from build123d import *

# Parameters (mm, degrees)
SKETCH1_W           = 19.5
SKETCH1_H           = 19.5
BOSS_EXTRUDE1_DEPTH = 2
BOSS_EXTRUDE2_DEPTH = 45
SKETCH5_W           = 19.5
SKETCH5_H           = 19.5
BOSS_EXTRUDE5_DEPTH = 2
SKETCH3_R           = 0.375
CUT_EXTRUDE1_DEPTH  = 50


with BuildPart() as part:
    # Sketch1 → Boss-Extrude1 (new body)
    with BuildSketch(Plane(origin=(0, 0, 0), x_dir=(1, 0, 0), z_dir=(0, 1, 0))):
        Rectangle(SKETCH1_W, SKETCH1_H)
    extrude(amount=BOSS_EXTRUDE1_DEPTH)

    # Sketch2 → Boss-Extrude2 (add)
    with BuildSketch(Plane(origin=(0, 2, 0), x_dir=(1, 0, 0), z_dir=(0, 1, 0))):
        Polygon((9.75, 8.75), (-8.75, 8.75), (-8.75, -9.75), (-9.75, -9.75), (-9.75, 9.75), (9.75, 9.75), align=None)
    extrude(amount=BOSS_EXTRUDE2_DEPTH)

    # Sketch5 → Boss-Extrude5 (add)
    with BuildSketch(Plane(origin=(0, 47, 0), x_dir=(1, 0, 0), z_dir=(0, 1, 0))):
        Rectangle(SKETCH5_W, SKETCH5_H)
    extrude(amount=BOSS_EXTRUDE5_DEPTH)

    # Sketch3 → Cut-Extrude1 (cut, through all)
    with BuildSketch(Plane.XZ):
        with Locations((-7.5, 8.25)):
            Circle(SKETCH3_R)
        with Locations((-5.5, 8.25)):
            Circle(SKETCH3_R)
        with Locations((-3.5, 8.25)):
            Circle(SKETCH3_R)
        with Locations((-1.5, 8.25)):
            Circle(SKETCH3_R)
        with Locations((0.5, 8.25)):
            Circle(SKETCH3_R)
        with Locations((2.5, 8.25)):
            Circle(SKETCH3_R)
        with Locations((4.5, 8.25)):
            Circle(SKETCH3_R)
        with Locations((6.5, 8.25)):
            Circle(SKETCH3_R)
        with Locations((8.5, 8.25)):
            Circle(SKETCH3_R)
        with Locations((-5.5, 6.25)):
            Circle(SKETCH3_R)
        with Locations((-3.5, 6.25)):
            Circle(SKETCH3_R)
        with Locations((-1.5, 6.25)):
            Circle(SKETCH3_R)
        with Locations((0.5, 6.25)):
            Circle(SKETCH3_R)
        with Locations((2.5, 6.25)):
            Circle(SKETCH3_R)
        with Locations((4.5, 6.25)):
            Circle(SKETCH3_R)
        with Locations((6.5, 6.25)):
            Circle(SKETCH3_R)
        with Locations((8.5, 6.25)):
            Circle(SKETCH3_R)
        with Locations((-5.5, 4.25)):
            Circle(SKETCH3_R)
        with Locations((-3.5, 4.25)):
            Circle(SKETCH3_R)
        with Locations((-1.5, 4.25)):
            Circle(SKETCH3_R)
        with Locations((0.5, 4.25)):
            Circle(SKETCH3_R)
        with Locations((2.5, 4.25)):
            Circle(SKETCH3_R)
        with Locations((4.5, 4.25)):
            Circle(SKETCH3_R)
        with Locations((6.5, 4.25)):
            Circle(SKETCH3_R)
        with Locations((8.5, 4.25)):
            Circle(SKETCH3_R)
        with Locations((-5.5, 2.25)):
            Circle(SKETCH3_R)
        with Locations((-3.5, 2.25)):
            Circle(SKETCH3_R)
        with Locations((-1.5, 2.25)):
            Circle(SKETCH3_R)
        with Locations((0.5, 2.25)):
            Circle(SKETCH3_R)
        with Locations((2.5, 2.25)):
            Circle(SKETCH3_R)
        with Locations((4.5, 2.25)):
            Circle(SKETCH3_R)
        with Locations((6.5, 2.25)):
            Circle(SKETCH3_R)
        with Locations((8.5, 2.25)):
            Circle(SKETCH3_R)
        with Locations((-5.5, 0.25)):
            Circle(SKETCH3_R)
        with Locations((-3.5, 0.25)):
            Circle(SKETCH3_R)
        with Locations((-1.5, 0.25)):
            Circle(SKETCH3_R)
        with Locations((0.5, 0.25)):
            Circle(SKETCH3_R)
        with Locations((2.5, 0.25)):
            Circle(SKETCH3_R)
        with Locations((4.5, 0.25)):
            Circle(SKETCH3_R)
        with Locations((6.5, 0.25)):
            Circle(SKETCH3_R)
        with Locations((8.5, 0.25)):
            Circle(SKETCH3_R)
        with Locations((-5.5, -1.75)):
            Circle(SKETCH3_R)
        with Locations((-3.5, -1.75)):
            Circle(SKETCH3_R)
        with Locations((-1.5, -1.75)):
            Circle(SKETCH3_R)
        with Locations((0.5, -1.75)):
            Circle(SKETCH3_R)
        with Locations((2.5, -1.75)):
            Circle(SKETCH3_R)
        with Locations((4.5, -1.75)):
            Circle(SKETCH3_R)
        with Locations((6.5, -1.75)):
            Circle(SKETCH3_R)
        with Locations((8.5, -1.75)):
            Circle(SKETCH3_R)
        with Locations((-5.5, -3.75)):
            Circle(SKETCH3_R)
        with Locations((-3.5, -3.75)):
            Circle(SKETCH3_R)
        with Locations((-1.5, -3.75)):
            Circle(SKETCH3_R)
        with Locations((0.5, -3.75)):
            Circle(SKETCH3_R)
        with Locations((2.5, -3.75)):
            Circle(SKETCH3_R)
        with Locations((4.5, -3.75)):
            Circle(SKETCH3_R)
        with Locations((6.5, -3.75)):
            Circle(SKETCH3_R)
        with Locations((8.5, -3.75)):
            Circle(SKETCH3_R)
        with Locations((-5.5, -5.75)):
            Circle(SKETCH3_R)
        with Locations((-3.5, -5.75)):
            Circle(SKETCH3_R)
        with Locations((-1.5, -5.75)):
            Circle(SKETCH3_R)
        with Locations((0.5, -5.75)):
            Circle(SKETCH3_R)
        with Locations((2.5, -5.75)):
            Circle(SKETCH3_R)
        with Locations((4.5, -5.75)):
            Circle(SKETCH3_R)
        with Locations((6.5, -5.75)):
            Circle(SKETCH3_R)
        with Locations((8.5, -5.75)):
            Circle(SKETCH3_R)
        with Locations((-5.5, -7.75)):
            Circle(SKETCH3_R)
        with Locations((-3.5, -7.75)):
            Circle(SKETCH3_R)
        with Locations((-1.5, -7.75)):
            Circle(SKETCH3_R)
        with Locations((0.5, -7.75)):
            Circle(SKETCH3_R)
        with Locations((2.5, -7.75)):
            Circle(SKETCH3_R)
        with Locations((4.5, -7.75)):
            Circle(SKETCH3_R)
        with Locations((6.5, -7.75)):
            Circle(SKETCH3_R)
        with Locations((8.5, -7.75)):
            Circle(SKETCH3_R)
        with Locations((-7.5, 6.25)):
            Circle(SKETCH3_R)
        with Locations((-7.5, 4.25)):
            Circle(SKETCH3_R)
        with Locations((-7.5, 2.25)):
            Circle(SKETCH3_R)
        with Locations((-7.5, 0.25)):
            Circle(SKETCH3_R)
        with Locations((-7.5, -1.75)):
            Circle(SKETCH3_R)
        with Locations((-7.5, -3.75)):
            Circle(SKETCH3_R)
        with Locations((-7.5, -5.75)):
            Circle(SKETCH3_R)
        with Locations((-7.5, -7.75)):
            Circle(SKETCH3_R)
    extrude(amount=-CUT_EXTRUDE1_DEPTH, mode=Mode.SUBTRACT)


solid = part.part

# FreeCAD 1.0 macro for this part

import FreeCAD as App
import Part
import Sketcher

V = App.Vector

doc = App.newDocument("Part")
params = doc.addObject("Spreadsheet::Sheet", "Params")
for row, (alias, value) in enumerate([
    ("sketch1_width", "19.5 mm"),
    ("pad1_length", "2 mm"),
    ("sketch2_width", "1 mm"),
    ("sketch2_width2", "18.5 mm"),
    ("pad2_length", "45 mm"),
    ("sketch3_width", "19.5 mm"),
    ("pad3_length", "2 mm"),
    ("sketch4_diameter", "0.75 mm"),
], start=1):
    params.set(f"A{row}", alias)
    params.set(f"B{row}", "=" + value)
    params.setAlias(f"B{row}", alias)

body = doc.addObject("PartDesign::Body", "Body")

sketch1 = body.newObject("Sketcher::SketchObject", "Sketch")
sketch1.AttachmentSupport = (doc.getObject("XZ_Plane"), [""])
sketch1.MapMode = "FlatFace"
sketch1.addGeometry([
    Part.LineSegment(V(-10, -10, 0), V(-10, 10, 0)),
    Part.LineSegment(V(-10, 10, 0), V(10, 10, 0)),
    Part.LineSegment(V(10, 10, 0), V(10, -10, 0)),
    Part.LineSegment(V(10, -10, 0), V(-10, -10, 0)),
], False)
sketch1.addConstraint([
    Sketcher.Constraint("Coincident", 0, 2, 1, 1),
    Sketcher.Constraint("Coincident", 1, 2, 2, 1),
    Sketcher.Constraint("Coincident", 2, 2, 3, 1),
    Sketcher.Constraint("Coincident", 3, 2, 0, 1),
    Sketcher.Constraint("Vertical", 0),
    Sketcher.Constraint("Horizontal", 1),
    Sketcher.Constraint("Vertical", 2),
    Sketcher.Constraint("Horizontal", 3),
    Sketcher.Constraint("Symmetric", 0, 2, 2, 2, -1, 1),
    Sketcher.Constraint("Equal", 3, 0),
    Sketcher.Constraint("DistanceX", 1, 1, 1, 2, 19.5),
])
sketch1.setExpression("Constraints[10]", "Params.sketch1_width")
pad1 = body.newObject("PartDesign::Pad", "Pad")
pad1.Profile = sketch1
pad1.setExpression("Length", "Params.pad1_length")
pad1.Reversed = True

sketch2 = body.newObject("Sketcher::SketchObject", "Sketch001")
sketch2.AttachmentSupport = (doc.getObject("XZ_Plane"), [""])
sketch2.MapMode = "FlatFace"
sketch2.AttachmentOffset = App.Placement(V(0, 0, -2), App.Rotation())
sketch2.addGeometry([
    Part.LineSegment(V(-8.8, -8.8, 0), V(9.8, -8.8, 0)),
    Part.LineSegment(V(9.8, -8.8, 0), V(9.8, -9.8, 0)),
    Part.LineSegment(V(9.8, -9.8, 0), V(-9.8, -9.8, 0)),
    Part.LineSegment(V(-9.8, -9.8, 0), V(-9.8, 9.8, 0)),
    Part.LineSegment(V(-9.8, 9.8, 0), V(-8.8, 9.8, 0)),
    Part.LineSegment(V(-8.8, 9.8, 0), V(-8.8, -8.8, 0)),
], False)
sketch2.addConstraint([
    Sketcher.Constraint("Coincident", 0, 2, 1, 1),
    Sketcher.Constraint("Coincident", 1, 2, 2, 1),
    Sketcher.Constraint("Coincident", 2, 2, 3, 1),
    Sketcher.Constraint("Coincident", 3, 2, 4, 1),
    Sketcher.Constraint("Coincident", 4, 2, 5, 1),
    Sketcher.Constraint("Coincident", 5, 2, 0, 1),
    Sketcher.Constraint("Horizontal", 0),
    Sketcher.Constraint("Vertical", 1),
    Sketcher.Constraint("Horizontal", 2),
    Sketcher.Constraint("Vertical", 3),
    Sketcher.Constraint("Horizontal", 4),
    Sketcher.Constraint("Vertical", 5),
    Sketcher.Constraint("Symmetric", 1, 2, 3, 2, -1, 1),
    Sketcher.Constraint("Equal", 4, 1),
    Sketcher.Constraint("Equal", 2, 3),
    Sketcher.Constraint("DistanceX", 4, 1, 4, 2, 1.0),
    Sketcher.Constraint("DistanceX", 0, 1, 0, 2, 18.5),
])
sketch2.setExpression("Constraints[15]", "Params.sketch2_width")
sketch2.setExpression("Constraints[16]", "Params.sketch2_width2")
pad2 = body.newObject("PartDesign::Pad", "Pad001")
pad2.Profile = sketch2
pad2.setExpression("Length", "Params.pad2_length")
pad2.Reversed = True

sketch3 = body.newObject("Sketcher::SketchObject", "Sketch002")
sketch3.AttachmentSupport = (doc.getObject("XZ_Plane"), [""])
sketch3.MapMode = "FlatFace"
sketch3.AttachmentOffset = App.Placement(V(0, 0, -47), App.Rotation())
sketch3.addGeometry([
    Part.LineSegment(V(-10, -10, 0), V(-10, 10, 0)),
    Part.LineSegment(V(-10, 10, 0), V(10, 10, 0)),
    Part.LineSegment(V(10, 10, 0), V(10, -10, 0)),
    Part.LineSegment(V(10, -10, 0), V(-10, -10, 0)),
], False)
sketch3.addConstraint([
    Sketcher.Constraint("Coincident", 0, 2, 1, 1),
    Sketcher.Constraint("Coincident", 1, 2, 2, 1),
    Sketcher.Constraint("Coincident", 2, 2, 3, 1),
    Sketcher.Constraint("Coincident", 3, 2, 0, 1),
    Sketcher.Constraint("Vertical", 0),
    Sketcher.Constraint("Horizontal", 1),
    Sketcher.Constraint("Vertical", 2),
    Sketcher.Constraint("Horizontal", 3),
    Sketcher.Constraint("Symmetric", 0, 2, 2, 2, -1, 1),
    Sketcher.Constraint("Equal", 3, 0),
    Sketcher.Constraint("DistanceX", 1, 1, 1, 2, 19.5),
])
sketch3.setExpression("Constraints[10]", "Params.sketch3_width")
pad3 = body.newObject("PartDesign::Pad", "Pad002")
pad3.Profile = sketch3
pad3.setExpression("Length", "Params.pad3_length")
pad3.Reversed = True

sketch4 = body.newObject("Sketcher::SketchObject", "Sketch003")
sketch4.AttachmentSupport = (doc.getObject("XZ_Plane"), [""])
sketch4.MapMode = "FlatFace"
sketch4.addGeometry([
    Part.Circle(V(-7.5, 8.25, 0), V(0, 0, 1), 0.38),
    Part.Circle(V(-5.5, 8.25, 0), V(0, 0, 1), 0.38),
    Part.Circle(V(-3.5, 8.25, 0), V(0, 0, 1), 0.38),
    Part.Circle(V(-1.5, 8.25, 0), V(0, 0, 1), 0.38),
    Part.Circle(V(0.5, 8.25, 0), V(0, 0, 1), 0.38),
    Part.Circle(V(2.5, 8.25, 0), V(0, 0, 1), 0.38),
    Part.Circle(V(4.5, 8.25, 0), V(0, 0, 1), 0.38),
    Part.Circle(V(6.5, 8.25, 0), V(0, 0, 1), 0.38),
    Part.Circle(V(8.5, 8.25, 0), V(0, 0, 1), 0.38),
    Part.Circle(V(-5.5, 6.25, 0), V(0, 0, 1), 0.38),
    Part.Circle(V(-3.5, 6.25, 0), V(0, 0, 1), 0.38),
    Part.Circle(V(-1.5, 6.25, 0), V(0, 0, 1), 0.38),
    Part.Circle(V(0.5, 6.25, 0), V(0, 0, 1), 0.38),
    Part.Circle(V(2.5, 6.25, 0), V(0, 0, 1), 0.38),
    Part.Circle(V(4.5, 6.25, 0), V(0, 0, 1), 0.38),
    Part.Circle(V(6.5, 6.25, 0), V(0, 0, 1), 0.38),
    Part.Circle(V(8.5, 6.25, 0), V(0, 0, 1), 0.38),
    Part.Circle(V(-5.5, 4.25, 0), V(0, 0, 1), 0.38),
    Part.Circle(V(-3.5, 4.25, 0), V(0, 0, 1), 0.38),
    Part.Circle(V(-1.5, 4.25, 0), V(0, 0, 1), 0.38),
    Part.Circle(V(0.5, 4.25, 0), V(0, 0, 1), 0.38),
    Part.Circle(V(2.5, 4.25, 0), V(0, 0, 1), 0.38),
    Part.Circle(V(4.5, 4.25, 0), V(0, 0, 1), 0.38),
    Part.Circle(V(6.5, 4.25, 0), V(0, 0, 1), 0.38),
    Part.Circle(V(8.5, 4.25, 0), V(0, 0, 1), 0.38),
    Part.Circle(V(-5.5, 2.25, 0), V(0, 0, 1), 0.38),
    Part.Circle(V(-3.5, 2.25, 0), V(0, 0, 1), 0.38),
    Part.Circle(V(-1.5, 2.25, 0), V(0, 0, 1), 0.38),
    Part.Circle(V(0.5, 2.25, 0), V(0, 0, 1), 0.38),
    Part.Circle(V(2.5, 2.25, 0), V(0, 0, 1), 0.38),
    Part.Circle(V(4.5, 2.25, 0), V(0, 0, 1), 0.38),
    Part.Circle(V(6.5, 2.25, 0), V(0, 0, 1), 0.38),
    Part.Circle(V(8.5, 2.25, 0), V(0, 0, 1), 0.38),
    Part.Circle(V(-5.5, 0.25, 0), V(0, 0, 1), 0.38),
    Part.Circle(V(-3.5, 0.25, 0), V(0, 0, 1), 0.38),
    Part.Circle(V(-1.5, 0.25, 0), V(0, 0, 1), 0.38),
    Part.Circle(V(0.5, 0.25, 0), V(0, 0, 1), 0.38),
    Part.Circle(V(2.5, 0.25, 0), V(0, 0, 1), 0.38),
    Part.Circle(V(4.5, 0.25, 0), V(0, 0, 1), 0.38),
    Part.Circle(V(6.5, 0.25, 0), V(0, 0, 1), 0.38),
    Part.Circle(V(8.5, 0.25, 0), V(0, 0, 1), 0.38),
    Part.Circle(V(-5.5, -1.75, 0), V(0, 0, 1), 0.38),
    Part.Circle(V(-3.5, -1.75, 0), V(0, 0, 1), 0.38),
    Part.Circle(V(-1.5, -1.75, 0), V(0, 0, 1), 0.38),
    Part.Circle(V(0.5, -1.75, 0), V(0, 0, 1), 0.38),
    Part.Circle(V(2.5, -1.75, 0), V(0, 0, 1), 0.38),
    Part.Circle(V(4.5, -1.75, 0), V(0, 0, 1), 0.38),
    Part.Circle(V(6.5, -1.75, 0), V(0, 0, 1), 0.38),
    Part.Circle(V(8.5, -1.75, 0), V(0, 0, 1), 0.38),
    Part.Circle(V(-5.5, -3.75, 0), V(0, 0, 1), 0.38),
    Part.Circle(V(-3.5, -3.75, 0), V(0, 0, 1), 0.38),
    Part.Circle(V(-1.5, -3.75, 0), V(0, 0, 1), 0.38),
    Part.Circle(V(0.5, -3.75, 0), V(0, 0, 1), 0.38),
    Part.Circle(V(2.5, -3.75, 0), V(0, 0, 1), 0.38),
    Part.Circle(V(4.5, -3.75, 0), V(0, 0, 1), 0.38),
    Part.Circle(V(6.5, -3.75, 0), V(0, 0, 1), 0.38),
    Part.Circle(V(8.5, -3.75, 0), V(0, 0, 1), 0.38),
    Part.Circle(V(-5.5, -5.75, 0), V(0, 0, 1), 0.38),
    Part.Circle(V(-3.5, -5.75, 0), V(0, 0, 1), 0.38),
    Part.Circle(V(-1.5, -5.75, 0), V(0, 0, 1), 0.38),
    Part.Circle(V(0.5, -5.75, 0), V(0, 0, 1), 0.38),
    Part.Circle(V(2.5, -5.75, 0), V(0, 0, 1), 0.38),
    Part.Circle(V(4.5, -5.75, 0), V(0, 0, 1), 0.38),
    Part.Circle(V(6.5, -5.75, 0), V(0, 0, 1), 0.38),
    Part.Circle(V(8.5, -5.75, 0), V(0, 0, 1), 0.38),
    Part.Circle(V(-5.5, -7.75, 0), V(0, 0, 1), 0.38),
    Part.Circle(V(-3.5, -7.75, 0), V(0, 0, 1), 0.38),
    Part.Circle(V(-1.5, -7.75, 0), V(0, 0, 1), 0.38),
    Part.Circle(V(0.5, -7.75, 0), V(0, 0, 1), 0.38),
    Part.Circle(V(2.5, -7.75, 0), V(0, 0, 1), 0.38),
    Part.Circle(V(4.5, -7.75, 0), V(0, 0, 1), 0.38),
    Part.Circle(V(6.5, -7.75, 0), V(0, 0, 1), 0.38),
    Part.Circle(V(8.5, -7.75, 0), V(0, 0, 1), 0.38),
    Part.Circle(V(-7.5, 6.25, 0), V(0, 0, 1), 0.38),
    Part.Circle(V(-7.5, 4.25, 0), V(0, 0, 1), 0.38),
    Part.Circle(V(-7.5, 2.25, 0), V(0, 0, 1), 0.38),
    Part.Circle(V(-7.5, 0.25, 0), V(0, 0, 1), 0.38),
    Part.Circle(V(-7.5, -1.75, 0), V(0, 0, 1), 0.38),
    Part.Circle(V(-7.5, -3.75, 0), V(0, 0, 1), 0.38),
    Part.Circle(V(-7.5, -5.75, 0), V(0, 0, 1), 0.38),
    Part.Circle(V(-7.5, -7.75, 0), V(0, 0, 1), 0.38),
], False)
sketch4.addConstraint([
    Sketcher.Constraint("Equal", 0, 1),
    Sketcher.Constraint("Equal", 1, 2),
    Sketcher.Constraint("Equal", 2, 3),
    Sketcher.Constraint("Equal", 3, 4),
    Sketcher.Constraint("Equal", 4, 5),
    Sketcher.Constraint("Equal", 5, 6),
    Sketcher.Constraint("Equal", 6, 7),
    Sketcher.Constraint("Equal", 7, 8),
    Sketcher.Constraint("Equal", 8, 9),
    Sketcher.Constraint("Equal", 9, 10),
    Sketcher.Constraint("Equal", 10, 11),
    Sketcher.Constraint("Equal", 11, 12),
    Sketcher.Constraint("Equal", 12, 13),
    Sketcher.Constraint("Equal", 13, 14),
    Sketcher.Constraint("Equal", 14, 15),
    Sketcher.Constraint("Equal", 15, 16),
    Sketcher.Constraint("Equal", 16, 17),
    Sketcher.Constraint("Equal", 17, 18),
    Sketcher.Constraint("Equal", 18, 19),
    Sketcher.Constraint("Equal", 19, 20),
    Sketcher.Constraint("Equal", 20, 21),
    Sketcher.Constraint("Equal", 21, 22),
    Sketcher.Constraint("Equal", 22, 23),
    Sketcher.Constraint("Equal", 23, 24),
    Sketcher.Constraint("Equal", 24, 25),
    Sketcher.Constraint("Equal", 25, 26),
    Sketcher.Constraint("Equal", 26, 27),
    Sketcher.Constraint("Equal", 27, 28),
    Sketcher.Constraint("Equal", 28, 29),
    Sketcher.Constraint("Equal", 29, 30),
    Sketcher.Constraint("Equal", 30, 31),
    Sketcher.Constraint("Equal", 31, 32),
    Sketcher.Constraint("Equal", 32, 33),
    Sketcher.Constraint("Equal", 33, 34),
    Sketcher.Constraint("Equal", 34, 35),
    Sketcher.Constraint("Equal", 35, 36),
    Sketcher.Constraint("Equal", 36, 37),
    Sketcher.Constraint("Equal", 37, 38),
    Sketcher.Constraint("Equal", 38, 39),
    Sketcher.Constraint("Equal", 39, 40),
    Sketcher.Constraint("Equal", 40, 41),
    Sketcher.Constraint("Equal", 41, 42),
    Sketcher.Constraint("Equal", 42, 43),
    Sketcher.Constraint("Equal", 43, 44),
    Sketcher.Constraint("Equal", 44, 45),
    Sketcher.Constraint("Equal", 45, 46),
    Sketcher.Constraint("Equal", 46, 47),
    Sketcher.Constraint("Equal", 47, 48),
    Sketcher.Constraint("Equal", 48, 49),
    Sketcher.Constraint("Equal", 49, 50),
    Sketcher.Constraint("Equal", 50, 51),
    Sketcher.Constraint("Equal", 51, 52),
    Sketcher.Constraint("Equal", 52, 53),
    Sketcher.Constraint("Equal", 53, 54),
    Sketcher.Constraint("Equal", 54, 55),
    Sketcher.Constraint("Equal", 55, 56),
    Sketcher.Constraint("Equal", 56, 57),
    Sketcher.Constraint("Equal", 57, 58),
    Sketcher.Constraint("Equal", 58, 59),
    Sketcher.Constraint("Equal", 59, 60),
    Sketcher.Constraint("Equal", 60, 61),
    Sketcher.Constraint("Equal", 61, 62),
    Sketcher.Constraint("Equal", 62, 63),
    Sketcher.Constraint("Equal", 63, 64),
    Sketcher.Constraint("Equal", 64, 65),
    Sketcher.Constraint("Equal", 65, 66),
    Sketcher.Constraint("Equal", 66, 67),
    Sketcher.Constraint("Equal", 67, 68),
    Sketcher.Constraint("Equal", 68, 69),
    Sketcher.Constraint("Equal", 69, 70),
    Sketcher.Constraint("Equal", 70, 71),
    Sketcher.Constraint("Equal", 71, 72),
    Sketcher.Constraint("Equal", 72, 73),
    Sketcher.Constraint("Equal", 73, 74),
    Sketcher.Constraint("Equal", 74, 75),
    Sketcher.Constraint("Equal", 75, 76),
    Sketcher.Constraint("Equal", 76, 77),
    Sketcher.Constraint("Equal", 77, 78),
    Sketcher.Constraint("Equal", 78, 79),
    Sketcher.Constraint("Equal", 79, 80),
    Sketcher.Constraint("Horizontal", 0, 3, 1, 3),
    Sketcher.Constraint("Horizontal", 1, 3, 2, 3),
    Sketcher.Constraint("Horizontal", 2, 3, 3, 3),
    Sketcher.Constraint("Horizontal", 3, 3, 4, 3),
    Sketcher.Constraint("Horizontal", 4, 3, 5, 3),
    Sketcher.Constraint("Horizontal", 5, 3, 6, 3),
    Sketcher.Constraint("Horizontal", 6, 3, 7, 3),
    Sketcher.Constraint("Horizontal", 7, 3, 8, 3),
    Sketcher.Constraint("Horizontal", 9, 3, 10, 3),
    Sketcher.Constraint("Horizontal", 10, 3, 11, 3),
    Sketcher.Constraint("Horizontal", 11, 3, 12, 3),
    Sketcher.Constraint("Horizontal", 12, 3, 13, 3),
    Sketcher.Constraint("Horizontal", 13, 3, 14, 3),
    Sketcher.Constraint("Horizontal", 14, 3, 15, 3),
    Sketcher.Constraint("Horizontal", 15, 3, 16, 3),
    Sketcher.Constraint("Horizontal", 17, 3, 18, 3),
    Sketcher.Constraint("Horizontal", 18, 3, 19, 3),
    Sketcher.Constraint("Horizontal", 19, 3, 20, 3),
    Sketcher.Constraint("Horizontal", 20, 3, 21, 3),
    Sketcher.Constraint("Horizontal", 21, 3, 22, 3),
    Sketcher.Constraint("Horizontal", 22, 3, 23, 3),
    Sketcher.Constraint("Horizontal", 23, 3, 24, 3),
    Sketcher.Constraint("Horizontal", 25, 3, 26, 3),
    Sketcher.Constraint("Horizontal", 26, 3, 27, 3),
    Sketcher.Constraint("Horizontal", 27, 3, 28, 3),
    Sketcher.Constraint("Horizontal", 28, 3, 29, 3),
    Sketcher.Constraint("Horizontal", 29, 3, 30, 3),
    Sketcher.Constraint("Horizontal", 30, 3, 31, 3),
    Sketcher.Constraint("Horizontal", 31, 3, 32, 3),
    Sketcher.Constraint("Horizontal", 33, 3, 34, 3),
    Sketcher.Constraint("Horizontal", 34, 3, 35, 3),
    Sketcher.Constraint("Horizontal", 35, 3, 36, 3),
    Sketcher.Constraint("Horizontal", 36, 3, 37, 3),
    Sketcher.Constraint("Horizontal", 37, 3, 38, 3),
    Sketcher.Constraint("Horizontal", 38, 3, 39, 3),
    Sketcher.Constraint("Horizontal", 39, 3, 40, 3),
    Sketcher.Constraint("Horizontal", 41, 3, 42, 3),
    Sketcher.Constraint("Horizontal", 42, 3, 43, 3),
    Sketcher.Constraint("Horizontal", 43, 3, 44, 3),
    Sketcher.Constraint("Horizontal", 44, 3, 45, 3),
    Sketcher.Constraint("Horizontal", 45, 3, 46, 3),
    Sketcher.Constraint("Horizontal", 46, 3, 47, 3),
    Sketcher.Constraint("Horizontal", 47, 3, 48, 3),
    Sketcher.Constraint("Horizontal", 49, 3, 50, 3),
    Sketcher.Constraint("Horizontal", 50, 3, 51, 3),
    Sketcher.Constraint("Horizontal", 51, 3, 52, 3),
    Sketcher.Constraint("Horizontal", 52, 3, 53, 3),
    Sketcher.Constraint("Horizontal", 53, 3, 54, 3),
    Sketcher.Constraint("Horizontal", 54, 3, 55, 3),
    Sketcher.Constraint("Horizontal", 55, 3, 56, 3),
    Sketcher.Constraint("Horizontal", 57, 3, 58, 3),
    Sketcher.Constraint("Horizontal", 58, 3, 59, 3),
    Sketcher.Constraint("Horizontal", 59, 3, 60, 3),
    Sketcher.Constraint("Horizontal", 60, 3, 61, 3),
    Sketcher.Constraint("Horizontal", 61, 3, 62, 3),
    Sketcher.Constraint("Horizontal", 62, 3, 63, 3),
    Sketcher.Constraint("Horizontal", 63, 3, 64, 3),
    Sketcher.Constraint("Horizontal", 65, 3, 66, 3),
    Sketcher.Constraint("Horizontal", 66, 3, 67, 3),
    Sketcher.Constraint("Horizontal", 67, 3, 68, 3),
    Sketcher.Constraint("Horizontal", 68, 3, 69, 3),
    Sketcher.Constraint("Horizontal", 69, 3, 70, 3),
    Sketcher.Constraint("Horizontal", 70, 3, 71, 3),
    Sketcher.Constraint("Horizontal", 71, 3, 72, 3),
    Sketcher.Constraint("Horizontal", 16, 3, 73, 3),
    Sketcher.Constraint("Horizontal", 24, 3, 74, 3),
    Sketcher.Constraint("Horizontal", 32, 3, 75, 3),
    Sketcher.Constraint("Horizontal", 40, 3, 76, 3),
    Sketcher.Constraint("Horizontal", 48, 3, 77, 3),
    Sketcher.Constraint("Horizontal", 56, 3, 78, 3),
    Sketcher.Constraint("Horizontal", 64, 3, 79, 3),
    Sketcher.Constraint("Horizontal", 72, 3, 80, 3),
    Sketcher.Constraint("Vertical", 1, 3, 9, 3),
    Sketcher.Constraint("Vertical", 2, 3, 10, 3),
    Sketcher.Constraint("Vertical", 3, 3, 11, 3),
    Sketcher.Constraint("Vertical", 4, 3, 12, 3),
    Sketcher.Constraint("Vertical", 5, 3, 13, 3),
    Sketcher.Constraint("Vertical", 6, 3, 14, 3),
    Sketcher.Constraint("Vertical", 7, 3, 15, 3),
    Sketcher.Constraint("Vertical", 8, 3, 16, 3),
    Sketcher.Constraint("Vertical", 9, 3, 17, 3),
    Sketcher.Constraint("Vertical", 10, 3, 18, 3),
    Sketcher.Constraint("Vertical", 11, 3, 19, 3),
    Sketcher.Constraint("Vertical", 12, 3, 20, 3),
    Sketcher.Constraint("Vertical", 13, 3, 21, 3),
    Sketcher.Constraint("Vertical", 14, 3, 22, 3),
    Sketcher.Constraint("Vertical", 15, 3, 23, 3),
    Sketcher.Constraint("Vertical", 16, 3, 24, 3),
    Sketcher.Constraint("Vertical", 17, 3, 25, 3),
    Sketcher.Constraint("Vertical", 18, 3, 26, 3),
    Sketcher.Constraint("Vertical", 19, 3, 27, 3),
    Sketcher.Constraint("Vertical", 20, 3, 28, 3),
    Sketcher.Constraint("Vertical", 21, 3, 29, 3),
    Sketcher.Constraint("Vertical", 22, 3, 30, 3),
    Sketcher.Constraint("Vertical", 23, 3, 31, 3),
    Sketcher.Constraint("Vertical", 24, 3, 32, 3),
    Sketcher.Constraint("Vertical", 25, 3, 33, 3),
    Sketcher.Constraint("Vertical", 26, 3, 34, 3),
    Sketcher.Constraint("Vertical", 27, 3, 35, 3),
    Sketcher.Constraint("Vertical", 28, 3, 36, 3),
    Sketcher.Constraint("Vertical", 29, 3, 37, 3),
    Sketcher.Constraint("Vertical", 30, 3, 38, 3),
    Sketcher.Constraint("Vertical", 31, 3, 39, 3),
    Sketcher.Constraint("Vertical", 32, 3, 40, 3),
    Sketcher.Constraint("Vertical", 33, 3, 41, 3),
    Sketcher.Constraint("Vertical", 34, 3, 42, 3),
    Sketcher.Constraint("Vertical", 35, 3, 43, 3),
    Sketcher.Constraint("Vertical", 36, 3, 44, 3),
    Sketcher.Constraint("Vertical", 37, 3, 45, 3),
    Sketcher.Constraint("Vertical", 38, 3, 46, 3),
    Sketcher.Constraint("Vertical", 39, 3, 47, 3),
    Sketcher.Constraint("Vertical", 40, 3, 48, 3),
    Sketcher.Constraint("Vertical", 41, 3, 49, 3),
    Sketcher.Constraint("Vertical", 42, 3, 50, 3),
    Sketcher.Constraint("Vertical", 43, 3, 51, 3),
    Sketcher.Constraint("Vertical", 44, 3, 52, 3),
    Sketcher.Constraint("Vertical", 45, 3, 53, 3),
    Sketcher.Constraint("Vertical", 46, 3, 54, 3),
    Sketcher.Constraint("Vertical", 47, 3, 55, 3),
    Sketcher.Constraint("Vertical", 48, 3, 56, 3),
    Sketcher.Constraint("Vertical", 49, 3, 57, 3),
    Sketcher.Constraint("Vertical", 50, 3, 58, 3),
    Sketcher.Constraint("Vertical", 51, 3, 59, 3),
    Sketcher.Constraint("Vertical", 52, 3, 60, 3),
    Sketcher.Constraint("Vertical", 53, 3, 61, 3),
    Sketcher.Constraint("Vertical", 54, 3, 62, 3),
    Sketcher.Constraint("Vertical", 55, 3, 63, 3),
    Sketcher.Constraint("Vertical", 56, 3, 64, 3),
    Sketcher.Constraint("Vertical", 57, 3, 65, 3),
    Sketcher.Constraint("Vertical", 58, 3, 66, 3),
    Sketcher.Constraint("Vertical", 59, 3, 67, 3),
    Sketcher.Constraint("Vertical", 60, 3, 68, 3),
    Sketcher.Constraint("Vertical", 61, 3, 69, 3),
    Sketcher.Constraint("Vertical", 62, 3, 70, 3),
    Sketcher.Constraint("Vertical", 63, 3, 71, 3),
    Sketcher.Constraint("Vertical", 64, 3, 72, 3),
    Sketcher.Constraint("Vertical", 0, 3, 73, 3),
    Sketcher.Constraint("Vertical", 73, 3, 74, 3),
    Sketcher.Constraint("Vertical", 74, 3, 75, 3),
    Sketcher.Constraint("Vertical", 75, 3, 76, 3),
    Sketcher.Constraint("Vertical", 76, 3, 77, 3),
    Sketcher.Constraint("Vertical", 77, 3, 78, 3),
    Sketcher.Constraint("Vertical", 78, 3, 79, 3),
    Sketcher.Constraint("Vertical", 79, 3, 80, 3),
    Sketcher.Constraint("Diameter", 0, 0.75),
    Sketcher.Constraint("DistanceX", 0, 3, -1, 1, 7.5),
    Sketcher.Constraint("DistanceX", 1, 3, -1, 1, 5.5),
    Sketcher.Constraint("DistanceX", 2, 3, -1, 1, 3.5),
    Sketcher.Constraint("DistanceX", 3, 3, -1, 1, 1.5),
    Sketcher.Constraint("DistanceX", -1, 1, 4, 3, 0.5),
    Sketcher.Constraint("DistanceX", -1, 1, 5, 3, 2.5),
    Sketcher.Constraint("DistanceX", -1, 1, 6, 3, 4.5),
    Sketcher.Constraint("DistanceX", -1, 1, 7, 3, 6.5),
    Sketcher.Constraint("DistanceX", -1, 1, 8, 3, 8.5),
    Sketcher.Constraint("DistanceY", -1, 1, 0, 3, 8.25),
    Sketcher.Constraint("DistanceY", -1, 1, 9, 3, 6.25),
    Sketcher.Constraint("DistanceY", -1, 1, 17, 3, 4.25),
    Sketcher.Constraint("DistanceY", -1, 1, 25, 3, 2.25),
    Sketcher.Constraint("DistanceY", -1, 1, 33, 3, 0.25),
    Sketcher.Constraint("DistanceY", 41, 3, -1, 1, 1.75),
    Sketcher.Constraint("DistanceY", 49, 3, -1, 1, 3.75),
    Sketcher.Constraint("DistanceY", 57, 3, -1, 1, 5.75),
    Sketcher.Constraint("DistanceY", 65, 3, -1, 1, 7.75),
])
sketch4.setExpression("Constraints[224]", "Params.sketch4_diameter")
pocket1 = body.newObject("PartDesign::Pocket", "Pocket")
pocket1.Profile = sketch4
pocket1.Type = "ThroughAll"

doc.recompute()
